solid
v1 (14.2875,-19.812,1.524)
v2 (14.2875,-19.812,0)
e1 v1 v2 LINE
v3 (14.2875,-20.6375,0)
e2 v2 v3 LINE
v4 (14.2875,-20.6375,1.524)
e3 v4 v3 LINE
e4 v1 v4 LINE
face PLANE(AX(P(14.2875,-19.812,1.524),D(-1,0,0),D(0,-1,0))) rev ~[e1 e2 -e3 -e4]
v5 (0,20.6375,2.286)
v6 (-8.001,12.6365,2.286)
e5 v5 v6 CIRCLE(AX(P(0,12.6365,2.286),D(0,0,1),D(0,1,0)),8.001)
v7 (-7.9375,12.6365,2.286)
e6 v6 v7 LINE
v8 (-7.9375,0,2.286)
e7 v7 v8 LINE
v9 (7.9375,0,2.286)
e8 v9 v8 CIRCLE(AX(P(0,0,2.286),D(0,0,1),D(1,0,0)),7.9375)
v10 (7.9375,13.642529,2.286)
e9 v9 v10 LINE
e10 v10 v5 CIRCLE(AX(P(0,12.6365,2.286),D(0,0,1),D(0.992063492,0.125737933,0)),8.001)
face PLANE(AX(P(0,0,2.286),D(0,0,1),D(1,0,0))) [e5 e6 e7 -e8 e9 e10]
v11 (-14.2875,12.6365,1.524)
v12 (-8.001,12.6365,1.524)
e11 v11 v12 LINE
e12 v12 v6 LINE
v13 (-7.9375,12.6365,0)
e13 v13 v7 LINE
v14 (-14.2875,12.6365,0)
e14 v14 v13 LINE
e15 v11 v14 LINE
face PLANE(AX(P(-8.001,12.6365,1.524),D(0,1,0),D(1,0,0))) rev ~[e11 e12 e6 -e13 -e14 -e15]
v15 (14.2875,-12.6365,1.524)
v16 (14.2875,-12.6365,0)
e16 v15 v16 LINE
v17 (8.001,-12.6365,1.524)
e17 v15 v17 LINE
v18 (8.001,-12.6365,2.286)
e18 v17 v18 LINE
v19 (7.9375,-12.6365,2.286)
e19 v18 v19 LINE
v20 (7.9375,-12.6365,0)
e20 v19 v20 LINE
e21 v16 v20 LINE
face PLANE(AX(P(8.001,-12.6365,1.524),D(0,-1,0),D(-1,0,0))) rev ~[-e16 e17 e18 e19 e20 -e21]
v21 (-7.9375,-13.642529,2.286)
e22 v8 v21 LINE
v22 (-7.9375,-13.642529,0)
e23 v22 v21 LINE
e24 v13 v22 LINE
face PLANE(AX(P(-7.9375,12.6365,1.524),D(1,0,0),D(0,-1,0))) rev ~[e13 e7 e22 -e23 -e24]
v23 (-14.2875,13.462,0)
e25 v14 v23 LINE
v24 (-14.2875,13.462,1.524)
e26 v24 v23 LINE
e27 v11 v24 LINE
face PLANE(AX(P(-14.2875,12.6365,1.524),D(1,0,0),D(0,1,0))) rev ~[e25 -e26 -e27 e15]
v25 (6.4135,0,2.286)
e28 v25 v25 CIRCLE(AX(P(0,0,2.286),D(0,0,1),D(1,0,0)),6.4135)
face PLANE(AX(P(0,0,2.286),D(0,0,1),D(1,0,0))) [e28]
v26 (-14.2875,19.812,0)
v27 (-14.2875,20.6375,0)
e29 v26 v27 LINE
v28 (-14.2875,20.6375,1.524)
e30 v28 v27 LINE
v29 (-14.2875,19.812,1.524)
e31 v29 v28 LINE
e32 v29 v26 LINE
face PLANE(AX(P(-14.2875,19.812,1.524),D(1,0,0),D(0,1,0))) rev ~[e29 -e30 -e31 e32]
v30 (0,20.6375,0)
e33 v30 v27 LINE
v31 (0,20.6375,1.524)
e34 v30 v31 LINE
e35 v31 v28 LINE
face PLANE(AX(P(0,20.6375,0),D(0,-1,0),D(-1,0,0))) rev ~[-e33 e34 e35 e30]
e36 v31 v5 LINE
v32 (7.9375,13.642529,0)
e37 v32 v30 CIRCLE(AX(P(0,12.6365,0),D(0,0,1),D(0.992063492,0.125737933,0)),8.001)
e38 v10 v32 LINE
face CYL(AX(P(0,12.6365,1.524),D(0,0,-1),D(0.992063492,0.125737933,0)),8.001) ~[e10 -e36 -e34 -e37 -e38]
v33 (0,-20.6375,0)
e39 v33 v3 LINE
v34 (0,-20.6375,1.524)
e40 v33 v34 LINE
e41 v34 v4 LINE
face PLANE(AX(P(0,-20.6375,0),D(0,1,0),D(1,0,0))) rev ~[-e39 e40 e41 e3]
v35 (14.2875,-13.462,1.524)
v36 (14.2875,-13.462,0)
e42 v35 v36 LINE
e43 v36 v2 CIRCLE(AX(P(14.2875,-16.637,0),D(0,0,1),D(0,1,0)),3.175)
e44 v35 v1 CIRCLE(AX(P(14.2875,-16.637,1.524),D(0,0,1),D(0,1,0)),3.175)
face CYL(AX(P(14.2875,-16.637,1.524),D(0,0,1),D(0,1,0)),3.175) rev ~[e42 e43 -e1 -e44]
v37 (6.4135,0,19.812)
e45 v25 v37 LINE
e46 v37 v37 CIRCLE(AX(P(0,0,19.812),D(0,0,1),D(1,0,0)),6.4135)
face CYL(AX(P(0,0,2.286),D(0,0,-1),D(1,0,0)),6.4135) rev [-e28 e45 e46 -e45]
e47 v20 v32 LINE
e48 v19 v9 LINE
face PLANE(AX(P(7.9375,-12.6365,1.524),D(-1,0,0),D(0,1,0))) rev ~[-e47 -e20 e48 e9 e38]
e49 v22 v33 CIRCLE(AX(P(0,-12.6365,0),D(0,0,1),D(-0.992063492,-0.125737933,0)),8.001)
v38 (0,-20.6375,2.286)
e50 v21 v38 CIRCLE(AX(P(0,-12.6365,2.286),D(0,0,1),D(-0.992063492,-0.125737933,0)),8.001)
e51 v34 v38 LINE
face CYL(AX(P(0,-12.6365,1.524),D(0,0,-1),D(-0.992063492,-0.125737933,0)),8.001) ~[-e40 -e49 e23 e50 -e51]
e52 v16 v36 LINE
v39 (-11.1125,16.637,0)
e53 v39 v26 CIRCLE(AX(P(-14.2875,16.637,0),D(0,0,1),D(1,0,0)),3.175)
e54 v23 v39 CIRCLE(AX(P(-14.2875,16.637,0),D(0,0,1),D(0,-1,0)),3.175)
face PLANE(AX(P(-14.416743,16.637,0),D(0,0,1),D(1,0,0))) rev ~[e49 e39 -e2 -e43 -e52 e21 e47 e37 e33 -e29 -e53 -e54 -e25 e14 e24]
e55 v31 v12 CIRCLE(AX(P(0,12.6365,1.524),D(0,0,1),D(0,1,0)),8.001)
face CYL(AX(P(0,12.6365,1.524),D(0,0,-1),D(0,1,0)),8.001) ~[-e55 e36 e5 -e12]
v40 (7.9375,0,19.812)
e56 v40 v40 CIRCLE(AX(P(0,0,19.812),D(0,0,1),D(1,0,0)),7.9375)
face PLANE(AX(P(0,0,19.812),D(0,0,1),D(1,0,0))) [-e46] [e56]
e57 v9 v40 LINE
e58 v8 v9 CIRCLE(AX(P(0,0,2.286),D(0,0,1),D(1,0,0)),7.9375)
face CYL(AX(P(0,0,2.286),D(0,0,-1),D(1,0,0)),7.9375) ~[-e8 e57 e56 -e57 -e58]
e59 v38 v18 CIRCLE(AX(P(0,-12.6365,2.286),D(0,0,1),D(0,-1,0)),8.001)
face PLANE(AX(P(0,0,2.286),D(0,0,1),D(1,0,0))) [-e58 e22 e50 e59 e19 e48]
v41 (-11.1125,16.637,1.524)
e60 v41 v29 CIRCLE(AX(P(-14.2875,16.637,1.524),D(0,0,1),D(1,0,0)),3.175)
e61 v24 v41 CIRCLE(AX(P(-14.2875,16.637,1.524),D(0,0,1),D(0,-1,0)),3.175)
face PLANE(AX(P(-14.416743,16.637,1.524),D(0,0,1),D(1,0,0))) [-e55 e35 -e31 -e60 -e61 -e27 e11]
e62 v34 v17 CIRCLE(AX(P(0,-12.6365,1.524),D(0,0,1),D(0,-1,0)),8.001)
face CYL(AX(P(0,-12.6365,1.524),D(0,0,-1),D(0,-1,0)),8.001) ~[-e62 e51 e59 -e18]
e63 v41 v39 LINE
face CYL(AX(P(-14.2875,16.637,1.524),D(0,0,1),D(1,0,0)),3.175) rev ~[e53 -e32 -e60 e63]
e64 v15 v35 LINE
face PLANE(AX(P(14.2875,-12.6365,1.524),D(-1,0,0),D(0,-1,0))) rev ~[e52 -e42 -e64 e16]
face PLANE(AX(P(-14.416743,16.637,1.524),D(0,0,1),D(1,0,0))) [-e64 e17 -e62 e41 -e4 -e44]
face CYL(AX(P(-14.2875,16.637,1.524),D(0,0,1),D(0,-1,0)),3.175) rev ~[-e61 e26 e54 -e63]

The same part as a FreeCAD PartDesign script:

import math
import FreeCAD as App
import Part
import Sketcher

V = App.Vector
Q = App.Units.Quantity

doc = App.newDocument("Part")
body = doc.addObject("PartDesign::Body", "Body")

sketch1 = body.newObject("Sketcher::SketchObject", "Sketch")
sketch1.AttachmentSupport = (doc.getObject("XY_Plane"), [""])
sketch1.MapMode = "FlatFace"
sketch1.addGeometry([
    Part.LineSegment(V(-20.6, 20.6, 0), V(-20.6, 19.1, 0)),
    Part.ArcOfCircle(Part.Circle(V(-20.6, 16.6, 0), V(0, 0, 1), 2.4), math.radians(0), math.radians(90)),
    Part.ArcOfCircle(Part.Circle(V(-20.6, 16.6, 0), V(0, 0, 1), 2.4), math.radians(-90), math.radians(0)),
    Part.LineSegment(V(-20.6, 14.2, 0), V(-20.6, 12.6, 0)),
    Part.LineSegment(V(-20.6, 12.6, 0), V(-7.9, 12.6, 0)),
    Part.LineSegment(V(-7.9, 12.6, 0), V(-7.9, -13.6, 0)),
    Part.ArcOfCircle(Part.Circle(V(0, -12.6, 0), V(0, 0, 1), 8), math.radians(-173), math.radians(-90)),
    Part.LineSegment(V(0, -20.6, 0), V(20.6, -20.6, 0)),
    Part.LineSegment(V(20.6, -20.6, 0), V(20.6, -19.1, 0)),
    Part.ArcOfCircle(Part.Circle(V(20.6, -16.6, 0), V(0, 0, 1), 2.4), math.radians(90), math.radians(270)),
    Part.LineSegment(V(20.6, -14.2, 0), V(20.6, -12.6, 0)),
    Part.LineSegment(V(20.6, -12.6, 0), V(7.9, -12.6, 0)),
    Part.LineSegment(V(7.9, -12.6, 0), V(7.9, 13.6, 0)),
    Part.ArcOfCircle(Part.Circle(V(0, 12.6, 0), V(0, 0, 1), 8), math.radians(7), math.radians(90)),
    Part.LineSegment(V(0, 20.6, 0), V(-20.6, 20.6, 0)),
], False)
sketch1.addConstraint([
    Sketcher.Constraint("Coincident", 0, 2, 1, 2),
    Sketcher.Constraint("Tangent", 1, 1, 2, 2),
    Sketcher.Constraint("Coincident", 2, 1, 3, 1),
    Sketcher.Constraint("Coincident", 3, 2, 4, 1),
    Sketcher.Constraint("Coincident", 4, 2, 5, 1),
    Sketcher.Constraint("Coincident", 5, 2, 6, 1),
    Sketcher.Constraint("Tangent", 6, 2, 7, 1),
    Sketcher.Constraint("Coincident", 7, 2, 8, 1),
    Sketcher.Constraint("Coincident", 8, 2, 9, 2),
    Sketcher.Constraint("Coincident", 9, 1, 10, 1),
    Sketcher.Constraint("Coincident", 10, 2, 11, 1),
    Sketcher.Constraint("Coincident", 11, 2, 12, 1),
    Sketcher.Constraint("Coincident", 12, 2, 13, 1),
    Sketcher.Constraint("Tangent", 13, 2, 14, 1),
    Sketcher.Constraint("Coincident", 14, 2, 0, 1),
    Sketcher.Constraint("Vertical", 0),
    Sketcher.Constraint("Vertical", 3),
    Sketcher.Constraint("Horizontal", 4),
    Sketcher.Constraint("Vertical", 5),
    Sketcher.Constraint("Horizontal", 7),
    Sketcher.Constraint("Vertical", 8),
    Sketcher.Constraint("Vertical", 10),
    Sketcher.Constraint("Horizontal", 11),
    Sketcher.Constraint("Vertical", 12),
    Sketcher.Constraint("Horizontal", 14),
    Sketcher.Constraint("Equal", 1, 2),
    Sketcher.Constraint("Equal", 2, 9),
    Sketcher.Constraint("Equal", 6, 13),
    Sketcher.Constraint("Symmetric", 1, 3, 9, 3, -1, 1),
    Sketcher.Constraint("Symmetric", 6, 3, 13, 3, -1, 1),
    Sketcher.Constraint("Symmetric", 3, 2, 10, 2, -1, 1),
    Sketcher.Constraint("PointOnObject", 6, 3, -2),
    Sketcher.Constraint("Horizontal", 2, 3, 1, 1),
    Sketcher.Constraint("Horizontal", 13, 3, 3, 2),
    Sketcher.Constraint("Vertical", 2, 3, 0, 2),
    Sketcher.Constraint("Vertical", 0, 2, 2, 1),
    Sketcher.Constraint("Vertical", 9, 3, 7, 2),
    Sketcher.Constraint("Equal", 4, 11),
    Sketcher.Constraint("Equal", 0, 3),
    Sketcher.Constraint("DistanceX", 4, 1, 4, 2, Q("0.5 in")),
    Sketcher.Constraint("Radius", 1, Q("0.095 in")),
    Sketcher.Constraint("Radius", 6, Q("0.315 in")),
    Sketcher.Constraint("DistanceX", 7, 1, 7, 2, Q("0.8125 in")),
    Sketcher.Constraint("DistanceY", -1, 1, 0, 2, Q("0.75 in")),
])
pad1 = body.newObject("PartDesign::Pad", "Pad")
pad1.Profile = sketch1
pad1.Length = Q("0.06 in")

sketch2 = body.newObject("Sketcher::SketchObject", "Sketch001")
sketch2.AttachmentSupport = (doc.getObject("XY_Plane"), [""])
sketch2.MapMode = "FlatFace"
sketch2.AttachmentOffset = App.Placement(V(0, 0, 0.06 * 25.4), App.Rotation())
sketch2.addGeometry([
    Part.ArcOfCircle(Part.Circle(V(0, 12.64, 0), V(0, 0, 1), 8), math.radians(7), math.radians(90)),
    Part.ArcOfCircle(Part.Circle(V(0, 12.64, 0), V(0, 0, 1), 8), math.radians(90), math.radians(180)),
    Part.LineSegment(V(-8, 12.64, 0), V(-7.94, 12.64, 0)),
    Part.LineSegment(V(-7.94, 12.64, 0), V(-7.94, -13.64, 0)),
    Part.ArcOfCircle(Part.Circle(V(0, -12.64, 0), V(0, 0, 1), 8), math.radians(-173), math.radians(-90)),
    Part.ArcOfCircle(Part.Circle(V(0, -12.64, 0), V(0, 0, 1), 8), math.radians(-90), math.radians(0)),
    Part.LineSegment(V(8, -12.64, 0), V(7.94, -12.64, 0)),
    Part.LineSegment(V(7.94, -12.64, 0), V(7.94, 13.64, 0)),
], False)
sketch2.addConstraint([
    Sketcher.Constraint("Tangent", 0, 2, 1, 1),
    Sketcher.Constraint("Coincident", 1, 2, 2, 1),
    Sketcher.Constraint("Coincident", 2, 2, 3, 1),
    Sketcher.Constraint("Coincident", 3, 2, 4, 1),
    Sketcher.Constraint("Tangent", 4, 2, 5, 1),
    Sketcher.Constraint("Coincident", 5, 2, 6, 1),
    Sketcher.Constraint("Coincident", 6, 2, 7, 1),
    Sketcher.Constraint("Coincident", 7, 2, 0, 1),
    Sketcher.Constraint("Horizontal", 2),
    Sketcher.Constraint("Vertical", 3),
    Sketcher.Constraint("Horizontal", 6),
    Sketcher.Constraint("Vertical", 7),
    Sketcher.Constraint("Equal", 0, 1),
    Sketcher.Constraint("Equal", 1, 4),
    Sketcher.Constraint("Equal", 4, 5),
    Sketcher.Constraint("Symmetric", 0, 3, 4, 3, -1, 1),
    Sketcher.Constraint("Symmetric", 2, 2, 6, 2, -1, 1),
    Sketcher.Constraint("PointOnObject", 0, 3, -2),
    Sketcher.Constraint("PointOnObject", 0, 2, -2),
    Sketcher.Constraint("PointOnObject", 4, 2, -2),
    Sketcher.Constraint("Horizontal", 0, 3, 1, 2),
    Sketcher.Constraint("Radius", 0, Q("0.315 in")),
    Sketcher.Constraint("DistanceY", 4, 3, 0, 2, Q("1.31 in")),
    Sketcher.Constraint("DistanceX", 2, 1, 2, 2, Q("0.0025 in")),
])
pad2 = body.newObject("PartDesign::Pad", "Pad001")
pad2.Profile = sketch2
pad2.Length = Q("0.03 in")

sketch3 = body.newObject("Sketcher::SketchObject", "Sketch002")
sketch3.AttachmentSupport = (doc.getObject("XY_Plane"), [""])
sketch3.MapMode = "FlatFace"
sketch3.AttachmentOffset = App.Placement(V(0, 0, 0.09 * 25.4), App.Rotation())
sketch3.addGeometry([
    Part.Circle(V(0, 0, 0), V(0, 0, 1), 8),
    Part.Circle(V(0, 0, 0), V(0, 0, 1), 6),
], False)
sketch3.addConstraint([
    Sketcher.Constraint("Coincident", 0, 3, -1, 1),
    Sketcher.Constraint("Coincident", 1, 3, -1, 1),
    Sketcher.Constraint("Diameter", 0, Q("0.625 in")),
    Sketcher.Constraint("Diameter", 1, Q("0.505 in")),
])
pad3 = body.newObject("PartDesign::Pad", "Pad002")
pad3.Profile = sketch3
pad3.Length = Q("0.69 in")

sketch4 = body.newObject("Sketcher::SketchObject", "Sketch003")
sketch4.AttachmentSupport = (doc.getObject("XY_Plane"), [""])
sketch4.MapMode = "FlatFace"
sketch4.AttachmentOffset = App.Placement(V(0, 0, 0.06 * 25.4), App.Rotation())
sketch4.addGeometry([
    Part.LineSegment(V(-14.3, 20.6, 0), V(-20.6, 20.6, 0)),
    Part.LineSegment(V(-20.6, 20.6, 0), V(-20.6, 19.1, 0)),
    Part.ArcOfCircle(Part.Circle(V(-20.6, 16.6, 0), V(0, 0, 1), 2.4), math.radians(-90), math.radians(90)),
    Part.LineSegment(V(-20.6, 14.2, 0), V(-20.6, 12.6, 0)),
    Part.LineSegment(V(-20.6, 12.6, 0), V(-14.3, 12.6, 0)),
    Part.LineSegment(V(-14.3, 12.6, 0), V(-14.3, 13.5, 0)),
    Part.ArcOfCircle(Part.Circle(V(-14.3, 16.6, 0), V(0, 0, 1), 3.2), math.radians(-90), math.radians(0)),
    Part.ArcOfCircle(Part.Circle(V(-14.3, 16.6, 0), V(0, 0, 1), 3.2), math.radians(0), math.radians(90)),
    Part.LineSegment(V(-14.3, 19.8, 0), V(-14.3, 20.6, 0)),
], False)
sketch4.addConstraint([
    Sketcher.Constraint("Coincident", 0, 2, 1, 1),
    Sketcher.Constraint("Coincident", 1, 2, 2, 2),
    Sketcher.Constraint("Coincident", 2, 1, 3, 1),
    Sketcher.Constraint("Coincident", 3, 2, 4, 1),
    Sketcher.Constraint("Coincident", 4, 2, 5, 1),
    Sketcher.Constraint("Coincident", 5, 2, 6, 1),
    Sketcher.Constraint("Tangent", 6, 2, 7, 1),
    Sketcher.Constraint("Coincident", 7, 2, 8, 1),
    Sketcher.Constraint("Coincident", 8, 2, 0, 1),
    Sketcher.Constraint("Horizontal", 0),
    Sketcher.Constraint("Vertical", 1),
    Sketcher.Constraint("Vertical", 3),
    Sketcher.Constraint("Horizontal", 4),
    Sketcher.Constraint("Vertical", 5),
    Sketcher.Constraint("Vertical", 8),
    Sketcher.Constraint("Equal", 6, 7),
    Sketcher.Constraint("Horizontal", 2, 3, 6, 3),
    Sketcher.Constraint("Horizontal", 7, 3, 6, 2),
    Sketcher.Constraint("Vertical", 2, 3, 0, 2),
    Sketcher.Constraint("Vertical", 1, 2, 2, 1),
    Sketcher.Constraint("Vertical", 7, 3, 4, 2),
    Sketcher.Constraint("Vertical", 5, 2, 7, 2),
    Sketcher.Constraint("Equal", 1, 3),
    Sketcher.Constraint("Radius", 2, Q("0.095 in")),
    Sketcher.Constraint("Radius", 6, Q("0.125 in")),
    Sketcher.Constraint("DistanceX", 0, 2, 0, 1, Q("0.25 in")),
    Sketcher.Constraint("DistanceY", 1, 2, 1, 1, Q("0.0625 in")),
    Sketcher.Constraint("DistanceY", -1, 1, 1, 2, Q("0.75 in")),
    Sketcher.Constraint("DistanceX", 2, 3, -1, 1, Q("0.8125 in")),
])
pocket1 = body.newObject("PartDesign::Pocket", "Pocket")
pocket1.Profile = sketch4
pocket1.Length = Q("1 in")

sketch5 = body.newObject("Sketcher::SketchObject", "Sketch004")
sketch5.AttachmentSupport = (doc.getObject("XY_Plane"), [""])
sketch5.MapMode = "FlatFace"
sketch5.AttachmentOffset = App.Placement(V(0, 0, 0.06 * 25.4), App.Rotation())
sketch5.addGeometry([
    Part.ArcOfCircle(Part.Circle(V(14.3, -16.6, 0), V(0, 0, 1), 3.2), math.radians(90), math.radians(270)),
    Part.LineSegment(V(14.3, -19.8, 0), V(14.3, -20.6, 0)),
    Part.LineSegment(V(14.3, -20.6, 0), V(20.6, -20.6, 0)),
    Part.LineSegment(V(20.6, -20.6, 0), V(20.6, -19.1, 0)),
    Part.ArcOfCircle(Part.Circle(V(20.6, -16.6, 0), V(0, 0, 1), 2.4), math.radians(90), math.radians(270)),
    Part.LineSegment(V(20.6, -14.2, 0), V(20.6, -12.6, 0)),
    Part.LineSegment(V(20.6, -12.6, 0), V(14.3, -12.6, 0)),
    Part.LineSegment(V(14.3, -12.6, 0), V(14.3, -13.5, 0)),
], False)
sketch5.addConstraint([
    Sketcher.Constraint("Coincident", 0, 2, 1, 1),
    Sketcher.Constraint("Coincident", 1, 2, 2, 1),
    Sketcher.Constraint("Coincident", 2, 2, 3, 1),
    Sketcher.Constraint("Coincident", 3, 2, 4, 2),
    Sketcher.Constraint("Coincident", 4, 1, 5, 1),
    Sketcher.Constraint("Coincident", 5, 2, 6, 1),
    Sketcher.Constraint("Coincident", 6, 2, 7, 1),
    Sketcher.Constraint("Coincident", 7, 2, 0, 1),
    Sketcher.Constraint("Vertical", 1),
    Sketcher.Constraint("Horizontal", 2),
    Sketcher.Constraint("Vertical", 3),
    Sketcher.Constraint("Vertical", 5),
    Sketcher.Constraint("Horizontal", 6),
    Sketcher.Constraint("Vertical", 7),
    Sketcher.Constraint("Horizontal", 0, 3, 4, 3),
    Sketcher.Constraint("Vertical", 4, 3, 2, 2),
    Sketcher.Constraint("Vertical", 3, 2, 4, 1),
    Sketcher.Constraint("Vertical", 1, 2, 6, 2),
    Sketcher.Constraint("Equal", 3, 5),
    Sketcher.Constraint("Radius", 0, Q("0.125 in")),
    Sketcher.Constraint("Radius", 4, Q("0.095 in")),
    Sketcher.Constraint("DistanceX", 2, 1, 2, 2, Q("0.25 in")),
    Sketcher.Constraint("DistanceY", 3, 1, 3, 2, Q("0.0625 in")),
    Sketcher.Constraint("DistanceY", 0, 2, -1, 1, Q("0.78 in")),
    Sketcher.Constraint("DistanceX", 0, 3, 4, 3, Q("0.25 in")),
    Sketcher.Constraint("DistanceX", -1, 1, 0, 3, Q("0.5625 in")),
])
pocket2 = body.newObject("PartDesign::Pocket", "Pocket001")
pocket2.Profile = sketch5
pocket2.Length = Q("1 in")

doc.recompute()
